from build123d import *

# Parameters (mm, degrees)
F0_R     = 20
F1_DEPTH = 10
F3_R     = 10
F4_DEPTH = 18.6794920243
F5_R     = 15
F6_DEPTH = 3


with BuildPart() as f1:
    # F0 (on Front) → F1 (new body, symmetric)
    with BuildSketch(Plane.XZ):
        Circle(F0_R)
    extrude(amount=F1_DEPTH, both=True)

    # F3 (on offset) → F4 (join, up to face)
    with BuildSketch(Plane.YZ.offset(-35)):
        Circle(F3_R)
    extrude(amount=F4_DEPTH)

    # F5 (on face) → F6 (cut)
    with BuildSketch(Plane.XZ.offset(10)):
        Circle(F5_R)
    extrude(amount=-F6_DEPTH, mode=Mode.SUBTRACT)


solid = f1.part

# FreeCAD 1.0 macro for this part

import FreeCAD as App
import Part
import Sketcher
from FreeCAD import Vector
Q = App.Units.Quantity

doc = App.newDocument("Part")
params = doc.addObject("Spreadsheet::Sheet", "Params")
for row, (alias, value) in enumerate([
    ("sketch1_diameter", "40 mm"),
    ("pad1_length", "20 mm"),
    ("sketch2_diameter", "20 mm"),
    ("pad2_length", "18.679492 mm"),
    ("sketch3_diameter", "30 mm"),
    ("pocket1_length", "3 mm"),
], start=1):
    params.set(f"A{row}", alias)
    params.set(f"B{row}", "=" + value)
    params.setAlias(f"B{row}", alias)

body = doc.addObject("PartDesign::Body", "Body")

# Sketch on XZ plane
sketch1 = body.newObject("Sketcher::SketchObject", "Sketch")
sketch1.AttachmentSupport = (doc.getObject("XZ_Plane"), [""])
sketch1.MapMode = "FlatFace"
sketch1.addGeometry(Part.Circle(Vector(0, 0, 0), Vector(0, 0, 1), 20), False)
sketch1.addConstraint(Sketcher.Constraint("Coincident", 0, 3, -1, 1))
sketch1.addConstraint(Sketcher.Constraint("Diameter", 0, Q("40 mm")))
sketch1.setExpression("Constraints[1]", "Params.sketch1_diameter")
pad1 = body.newObject("PartDesign::Pad", "Pad")
pad1.Profile = sketch1
pad1.setExpression("Length", "Params.pad1_length")
pad1.Midplane = True

# Sketch on YZ plane
sketch2 = body.newObject("Sketcher::SketchObject", "Sketch001")
sketch2.AttachmentSupport = (doc.getObject("YZ_Plane"), [""])
sketch2.MapMode = "FlatFace"
sketch2.AttachmentOffset = App.Placement(Vector(0, 0, -35), App.Rotation())
sketch2.addGeometry(Part.Circle(Vector(0, 0, 0), Vector(0, 0, 1), 10), False)
sketch2.addConstraint(Sketcher.Constraint("Coincident", 0, 3, -1, 1))
sketch2.addConstraint(Sketcher.Constraint("Diameter", 0, Q("20 mm")))
sketch2.setExpression("Constraints[1]", "Params.sketch2_diameter")
pad2 = body.newObject("PartDesign::Pad", "Pad001")
pad2.Profile = sketch2
pad2.setExpression("Length", "Params.pad2_length")

# Sketch on XZ plane
sketch3 = body.newObject("Sketcher::SketchObject", "Sketch002")
sketch3.AttachmentSupport = (doc.getObject("XZ_Plane"), [""])
sketch3.MapMode = "FlatFace"
sketch3.AttachmentOffset = App.Placement(Vector(0, 0, 10), App.Rotation())
sketch3.addGeometry(Part.Circle(Vector(0, 0, 0), Vector(0, 0, 1), 15), False)
sketch3.addConstraint(Sketcher.Constraint("Coincident", 0, 3, -1, 1))
sketch3.addConstraint(Sketcher.Constraint("Diameter", 0, Q("30 mm")))
sketch3.setExpression("Constraints[1]", "Params.sketch3_diameter")
pocket1 = body.newObject("PartDesign::Pocket", "Pocket")
pocket1.Profile = sketch3
pocket1.setExpression("Length", "Params.pocket1_length")

doc.recompute()
